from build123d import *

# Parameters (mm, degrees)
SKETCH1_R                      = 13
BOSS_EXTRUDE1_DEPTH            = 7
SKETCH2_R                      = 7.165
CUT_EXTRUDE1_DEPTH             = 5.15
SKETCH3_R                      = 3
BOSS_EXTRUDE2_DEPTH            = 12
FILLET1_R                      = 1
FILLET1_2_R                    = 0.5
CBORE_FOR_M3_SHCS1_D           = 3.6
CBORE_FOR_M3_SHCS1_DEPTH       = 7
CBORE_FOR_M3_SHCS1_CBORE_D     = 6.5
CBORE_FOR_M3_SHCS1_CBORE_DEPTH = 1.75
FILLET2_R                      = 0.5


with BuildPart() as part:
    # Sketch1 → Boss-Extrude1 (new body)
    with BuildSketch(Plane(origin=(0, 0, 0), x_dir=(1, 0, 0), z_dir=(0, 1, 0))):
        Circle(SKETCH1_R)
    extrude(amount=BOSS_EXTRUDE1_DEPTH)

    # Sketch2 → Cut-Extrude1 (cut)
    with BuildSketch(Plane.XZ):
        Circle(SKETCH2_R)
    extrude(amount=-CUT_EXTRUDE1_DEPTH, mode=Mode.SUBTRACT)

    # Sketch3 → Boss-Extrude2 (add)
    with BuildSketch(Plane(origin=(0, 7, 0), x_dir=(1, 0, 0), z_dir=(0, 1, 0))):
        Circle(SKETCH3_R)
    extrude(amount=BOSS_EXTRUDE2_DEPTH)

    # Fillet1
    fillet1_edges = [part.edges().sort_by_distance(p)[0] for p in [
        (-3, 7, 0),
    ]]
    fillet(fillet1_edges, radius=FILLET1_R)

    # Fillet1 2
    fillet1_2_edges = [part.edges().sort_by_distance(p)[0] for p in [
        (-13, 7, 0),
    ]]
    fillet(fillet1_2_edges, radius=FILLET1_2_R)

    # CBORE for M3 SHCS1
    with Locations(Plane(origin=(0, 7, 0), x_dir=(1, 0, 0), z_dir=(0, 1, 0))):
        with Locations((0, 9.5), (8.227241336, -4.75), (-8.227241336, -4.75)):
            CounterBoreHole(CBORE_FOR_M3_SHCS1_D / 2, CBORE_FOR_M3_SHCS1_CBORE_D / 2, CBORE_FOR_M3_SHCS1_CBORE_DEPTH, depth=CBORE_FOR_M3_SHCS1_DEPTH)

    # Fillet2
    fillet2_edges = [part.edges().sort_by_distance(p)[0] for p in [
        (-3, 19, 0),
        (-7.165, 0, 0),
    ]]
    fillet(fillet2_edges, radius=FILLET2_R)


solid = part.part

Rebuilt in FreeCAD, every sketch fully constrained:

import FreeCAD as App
import Part
import Sketcher
Q = App.Units.Quantity


def edges_at(feature, points):
    """Names of the edges that pass closest to the given points."""
    edges = feature.Shape.Edges
    near = lambda p: min(range(len(edges)), key=lambda i: edges[i].distToShape(Part.Vertex(*p))[0])
    return sorted({f"Edge{near(p) + 1}" for p in points})

doc = App.newDocument("Part")
body = doc.addObject("PartDesign::Body", "Body")

sketch1 = body.newObject("Sketcher::SketchObject", "Sketch")
sketch1.AttachmentSupport = (doc.getObject("XZ_Plane"), [""])
sketch1.MapMode = "FlatFace"
sketch1.addGeometry(Part.Circle(App.Vector(0, 0, 0), App.Vector(0, 0, 1), 13), False)
sketch1.addConstraint([
    Sketcher.Constraint("Coincident", 0, 3, -1, 1),
    Sketcher.Constraint("Diameter", 0, Q("26 mm")),
])
pad1 = body.newObject("PartDesign::Pad", "Pad")
pad1.Profile = sketch1
pad1.Length = 7
pad1.Reversed = True

sketch2 = body.newObject("Sketcher::SketchObject", "Sketch001")
sketch2.AttachmentSupport = (doc.getObject("XZ_Plane"), [""])
sketch2.MapMode = "FlatFace"
sketch2.addGeometry(Part.Circle(App.Vector(0, 0, 0), App.Vector(0, 0, 1), 7), False)
sketch2.addConstraint([
    Sketcher.Constraint("Coincident", 0, 3, -1, 1),
    Sketcher.Constraint("Diameter", 0, Q("14.33 mm")),
])
pocket1 = body.newObject("PartDesign::Pocket", "Pocket")
pocket1.Profile = sketch2
pocket1.Length = 5.15

sketch3 = body.newObject("Sketcher::SketchObject", "Sketch002")
sketch3.AttachmentSupport = (doc.getObject("XZ_Plane"), [""])
sketch3.MapMode = "FlatFace"
sketch3.AttachmentOffset = App.Placement(App.Vector(0, 0, -7), App.Rotation())
sketch3.addGeometry(Part.Circle(App.Vector(0, 0, 0), App.Vector(0, 0, 1), 3), False)
sketch3.addConstraint([
    Sketcher.Constraint("Coincident", 0, 3, -1, 1),
    Sketcher.Constraint("Diameter", 0, Q("6 mm")),
])
pad2 = body.newObject("PartDesign::Pad", "Pad001")
pad2.Profile = sketch3
pad2.Length = 12
pad2.Reversed = True
doc.recompute()

fillet = body.newObject("PartDesign::Fillet", "Fillet")
fillet.Base = (pad2, edges_at(pad2, [(-3, 7, 0)]))
fillet.Radius = 1
doc.recompute()

fillet2 = body.newObject("PartDesign::Fillet", "Fillet001")
fillet2.Base = (fillet, edges_at(fillet, [(-13, 7, 0)]))
fillet2.Radius = 0.5

sketch4 = body.newObject("Sketcher::SketchObject", "Sketch003")
sketch4.AttachmentSupport = (doc.getObject("XZ_Plane"), [""])
sketch4.MapMode = "FlatFace"
sketch4.AttachmentOffset = App.Placement(App.Vector(0, 0, -7), App.Rotation())
sketch4.addGeometry([
    Part.Circle(App.Vector(0, -9.5, 0), App.Vector(0, 0, 1), 1.8),
    Part.Circle(App.Vector(8.2, 4.8, 0), App.Vector(0, 0, 1), 1.8),
    Part.Circle(App.Vector(-8.2, 4.8, 0), App.Vector(0, 0, 1), 1.8),
], False)
sketch4.addConstraint([
    Sketcher.Constraint("Equal", 0, 1),
    Sketcher.Constraint("Equal", 1, 2),
    Sketcher.Constraint("Symmetric", 1, 3, 2, 3, -2),
    Sketcher.Constraint("PointOnObject", 0, 3, -2),
    Sketcher.Constraint("Diameter", 0, Q("3.6 mm")),
    Sketcher.Constraint("DistanceY", 0, 3, -1, 1, Q("9.5 mm")),
    Sketcher.Constraint("DistanceY", -1, 1, 1, 3, Q("4.75 mm")),
    Sketcher.Constraint("DistanceX", -1, 1, 1, 3, Q("8.227241 mm")),
])
doc.recompute()
hole = body.newObject("PartDesign::Hole", "Hole")
hole.Profile = sketch4
hole.ThreadType = "None"
hole.Diameter = 3.6
hole.DepthType = "Dimension"
hole.Depth = 7
hole.DrillPoint = "Flat"
hole.HoleCutType = "Counterbore"
hole.HoleCutDiameter = 6.5
hole.HoleCutDepth = 1.75
hole.Reversed = True
doc.recompute()

fillet3 = body.newObject("PartDesign::Fillet", "Fillet002")
fillet3.Base = (hole, edges_at(hole, [(-3, 19, 0), (-7.165, 0, 0)]))
fillet3.Radius = 0.5

doc.recompute()
